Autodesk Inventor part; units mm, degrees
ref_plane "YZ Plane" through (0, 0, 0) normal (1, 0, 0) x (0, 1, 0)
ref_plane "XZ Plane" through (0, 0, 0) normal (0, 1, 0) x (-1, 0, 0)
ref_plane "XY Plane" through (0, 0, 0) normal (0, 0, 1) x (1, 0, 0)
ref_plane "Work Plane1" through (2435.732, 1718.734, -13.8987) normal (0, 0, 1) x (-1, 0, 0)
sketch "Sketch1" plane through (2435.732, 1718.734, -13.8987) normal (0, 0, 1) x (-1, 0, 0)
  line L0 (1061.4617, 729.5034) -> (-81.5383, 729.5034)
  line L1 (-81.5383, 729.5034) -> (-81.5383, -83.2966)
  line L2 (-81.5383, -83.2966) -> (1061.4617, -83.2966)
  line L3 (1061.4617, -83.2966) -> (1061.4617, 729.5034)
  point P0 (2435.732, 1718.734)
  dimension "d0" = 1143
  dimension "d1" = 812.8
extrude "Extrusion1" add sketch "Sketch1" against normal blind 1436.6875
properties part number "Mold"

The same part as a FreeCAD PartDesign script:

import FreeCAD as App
import Part
import Sketcher
Q = App.Units.Quantity

doc = App.newDocument("Part")
body = doc.addObject("PartDesign::Body", "Body")

sketch1 = body.newObject("Sketcher::SketchObject", "Sketch")
sketch1.AttachmentSupport = (doc.getObject("XY_Plane"), [""])
sketch1.MapMode = "FlatFace"
sketch1.AttachmentOffset = App.Placement(App.Vector(0, 0, -0.5471929 * 25.4), App.Rotation())
sketch1.addGeometry(Part.LineSegment(App.Vector(1374.2703, 1802.0306, 0), App.Vector(1374.2703, 989.2306, 0)), False)
sketch1.addGeometry(Part.LineSegment(App.Vector(1374.2703, 989.2306, 0), App.Vector(2517.2703, 989.2306, 0)), False)
sketch1.addGeometry(Part.LineSegment(App.Vector(2517.2703, 989.2306, 0), App.Vector(2517.2703, 1802.0306, 0)), False)
sketch1.addGeometry(Part.LineSegment(App.Vector(2517.2703, 1802.0306, 0), App.Vector(1374.2703, 1802.0306, 0)), False)
sketch1.addConstraint(Sketcher.Constraint("Coincident", 0, 2, 1, 1))
sketch1.addConstraint(Sketcher.Constraint("Coincident", 1, 2, 2, 1))
sketch1.addConstraint(Sketcher.Constraint("Coincident", 2, 2, 3, 1))
sketch1.addConstraint(Sketcher.Constraint("Coincident", 3, 2, 0, 1))
sketch1.addConstraint(Sketcher.Constraint("Vertical", 0))
sketch1.addConstraint(Sketcher.Constraint("Horizontal", 1))
sketch1.addConstraint(Sketcher.Constraint("Vertical", 2))
sketch1.addConstraint(Sketcher.Constraint("Horizontal", 3))
sketch1.addConstraint(Sketcher.Constraint("DistanceX", 1, 1, 1, 2, Q("45 in")))
sketch1.addConstraint(Sketcher.Constraint("DistanceY", 0, 2, 0, 1, Q("32 in")))
sketch1.addConstraint(Sketcher.Constraint("DistanceX", -1, 1, 0, 2, 1374.2703))
sketch1.addConstraint(Sketcher.Constraint("DistanceY", -1, 1, 0, 2, 989.2306))
pad1 = body.newObject("PartDesign::Pad", "Pad")
pad1.Profile = sketch1
pad1.Length = Q("56.5625 in")
pad1.Reversed = True

doc.recompute()
